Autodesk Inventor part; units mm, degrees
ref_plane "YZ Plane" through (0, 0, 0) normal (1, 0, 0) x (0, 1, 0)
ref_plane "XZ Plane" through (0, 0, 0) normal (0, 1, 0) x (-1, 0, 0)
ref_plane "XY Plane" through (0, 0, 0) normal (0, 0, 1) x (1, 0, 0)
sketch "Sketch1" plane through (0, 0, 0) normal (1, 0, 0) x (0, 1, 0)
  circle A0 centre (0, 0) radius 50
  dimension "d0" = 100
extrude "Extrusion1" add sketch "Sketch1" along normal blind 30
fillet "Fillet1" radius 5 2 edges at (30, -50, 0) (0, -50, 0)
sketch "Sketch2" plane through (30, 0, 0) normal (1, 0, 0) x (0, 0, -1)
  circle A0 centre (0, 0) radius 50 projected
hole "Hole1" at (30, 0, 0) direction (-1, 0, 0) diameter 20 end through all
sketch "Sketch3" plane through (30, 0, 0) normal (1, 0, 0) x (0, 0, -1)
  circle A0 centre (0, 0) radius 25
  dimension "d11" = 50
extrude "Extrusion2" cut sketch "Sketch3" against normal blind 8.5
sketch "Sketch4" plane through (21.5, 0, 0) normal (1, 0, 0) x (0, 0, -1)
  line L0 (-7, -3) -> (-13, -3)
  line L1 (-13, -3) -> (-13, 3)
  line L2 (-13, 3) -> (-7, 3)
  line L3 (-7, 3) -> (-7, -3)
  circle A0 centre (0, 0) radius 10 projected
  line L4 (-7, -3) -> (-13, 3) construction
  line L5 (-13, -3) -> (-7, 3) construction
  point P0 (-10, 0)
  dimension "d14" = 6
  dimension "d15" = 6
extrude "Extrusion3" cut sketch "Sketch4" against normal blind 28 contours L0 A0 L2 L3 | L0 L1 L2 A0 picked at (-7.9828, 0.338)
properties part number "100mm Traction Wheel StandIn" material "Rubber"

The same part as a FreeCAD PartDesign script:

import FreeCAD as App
import Part
import Sketcher

V = App.Vector


def edges_at(feature, points):
    """Names of the edges that pass closest to the given points."""
    edges = feature.Shape.Edges
    near = lambda p: min(range(len(edges)), key=lambda i: edges[i].distToShape(Part.Vertex(*p))[0])
    return sorted({f"Edge{near(p) + 1}" for p in points})


def add_polygon(sketch, points):
    """Adds a closed chain of lines whose ends are joined by coincident constraints."""
    first, n = sketch.GeometryCount, len(points)
    for a, b in zip(points, points[1:] + points[:1]):
        sketch.addGeometry(Part.LineSegment(App.Vector(*a, 0), App.Vector(*b, 0)), False)
    for i in range(n):
        sketch.addConstraint(Sketcher.Constraint("Coincident", first + i, 2, first + (i + 1) % n, 1))

doc = App.newDocument("Part")
body = doc.addObject("PartDesign::Body", "Body")

# Sketch on YZ plane
sketch1 = body.newObject("Sketcher::SketchObject", "Sketch")
sketch1.AttachmentSupport = (doc.getObject("YZ_Plane"), [""])
sketch1.MapMode = "FlatFace"
sketch1.addGeometry(Part.Circle(V(0, 0, 0), V(0, 0, 1), 50), False)
sketch1.addConstraint(Sketcher.Constraint("Coincident", 0, 3, -1, 1))
sketch1.addConstraint(Sketcher.Constraint("Diameter", 0, 100.0))
pad1 = body.newObject("PartDesign::Pad", "Pad")
pad1.Profile = sketch1
pad1.Length = 30
doc.recompute()

fillet = body.newObject("PartDesign::Fillet", "Fillet")
fillet.Base = (pad1, edges_at(pad1, [(30, -50, 0), (0, -50, 0)]))
fillet.Radius = 5

# Sketch on YZ plane
sketch2 = body.newObject("Sketcher::SketchObject", "Sketch001")
sketch2.AttachmentSupport = (doc.getObject("YZ_Plane"), [""])
sketch2.MapMode = "FlatFace"
sketch2.AttachmentOffset = App.Placement(V(0, 0, 30), App.Rotation())
sketch2.addGeometry(Part.Circle(V(0, 0, 0), V(0, 0, 1), 10), False)
sketch2.addConstraint(Sketcher.Constraint("Coincident", 0, 3, -1, 1))
sketch2.addConstraint(Sketcher.Constraint("Diameter", 0, 20.0))
doc.recompute()
hole = body.newObject("PartDesign::Hole", "Hole")
hole.Profile = sketch2
hole.ThreadType = "None"
hole.Diameter = 20
hole.DepthType = "ThroughAll"

# Sketch on YZ plane
sketch3 = body.newObject("Sketcher::SketchObject", "Sketch002")
sketch3.AttachmentSupport = (doc.getObject("YZ_Plane"), [""])
sketch3.MapMode = "FlatFace"
sketch3.AttachmentOffset = App.Placement(V(0, 0, 30), App.Rotation())
sketch3.addGeometry(Part.Circle(V(0, 0, 0), V(0, 0, 1), 25), False)
sketch3.addConstraint(Sketcher.Constraint("Coincident", 0, 3, -1, 1))
sketch3.addConstraint(Sketcher.Constraint("Diameter", 0, 50.0))
pocket1 = body.newObject("PartDesign::Pocket", "Pocket")
pocket1.Profile = sketch3
pocket1.Length = 8.5

# Sketch on YZ plane
sketch4 = body.newObject("Sketcher::SketchObject", "Sketch003")
sketch4.AttachmentSupport = (doc.getObject("YZ_Plane"), [""])
sketch4.MapMode = "FlatFace"
sketch4.AttachmentOffset = App.Placement(V(0, 0, 21.5), App.Rotation())
add_polygon(sketch4, [(-3, 7), (3, 7), (3, 13), (-3, 13)])  # lines 0-3
sketch4.addConstraint(Sketcher.Constraint("Horizontal", 0))
sketch4.addConstraint(Sketcher.Constraint("Vertical", 1))
sketch4.addConstraint(Sketcher.Constraint("Horizontal", 2))
sketch4.addConstraint(Sketcher.Constraint("Vertical", 3))
sketch4.addConstraint(Sketcher.Constraint("Equal", 2, 1))
sketch4.addConstraint(Sketcher.Constraint("DistanceX", 0, 1, 0, 2, 6.0))
sketch4.addConstraint(Sketcher.Constraint("DistanceX", -1, 1, 0, 2, 3.0))
sketch4.addConstraint(Sketcher.Constraint("DistanceY", -1, 1, 0, 2, 7.0))
pocket2 = body.newObject("PartDesign::Pocket", "Pocket001")
pocket2.Profile = sketch4
pocket2.Length = 28

doc.recompute()
